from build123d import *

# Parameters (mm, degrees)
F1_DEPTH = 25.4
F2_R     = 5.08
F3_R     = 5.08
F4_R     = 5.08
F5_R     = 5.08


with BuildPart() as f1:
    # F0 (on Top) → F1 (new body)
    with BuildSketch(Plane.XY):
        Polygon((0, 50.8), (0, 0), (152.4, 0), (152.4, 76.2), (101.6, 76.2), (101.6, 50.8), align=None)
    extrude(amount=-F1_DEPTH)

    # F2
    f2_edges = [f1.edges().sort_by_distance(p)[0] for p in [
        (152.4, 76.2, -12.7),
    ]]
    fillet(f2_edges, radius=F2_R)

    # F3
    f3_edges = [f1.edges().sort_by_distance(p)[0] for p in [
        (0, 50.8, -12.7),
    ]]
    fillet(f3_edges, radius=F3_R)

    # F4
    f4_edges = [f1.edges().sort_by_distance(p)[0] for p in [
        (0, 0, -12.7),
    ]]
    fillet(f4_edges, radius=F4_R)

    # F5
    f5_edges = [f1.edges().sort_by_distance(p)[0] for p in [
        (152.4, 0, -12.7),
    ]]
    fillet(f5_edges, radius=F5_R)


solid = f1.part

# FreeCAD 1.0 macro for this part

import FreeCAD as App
import Part
import Sketcher

V = App.Vector
Q = App.Units.Quantity


def edges_at(feature, points):
    """Names of the edges that pass closest to the given points."""
    edges = feature.Shape.Edges
    near = lambda p: min(range(len(edges)), key=lambda i: edges[i].distToShape(Part.Vertex(*p))[0])
    return sorted({f"Edge{near(p) + 1}" for p in points})

doc = App.newDocument("Part")
params = doc.addObject("Spreadsheet::Sheet", "Params")
for row, (alias, value) in enumerate([
    ("sketch1_width", "6 in"),
    ("sketch1_width2", "2 in"),
    ("sketch1_height", "3 in"),
    ("pad1_length", "1 in"),
    ("fillet_radius", "0.2 in"),
    ("fillet2_radius", "0.2 in"),
    ("fillet3_radius", "0.2 in"),
    ("fillet4_radius", "0.2 in"),
], start=1):
    params.set(f"A{row}", alias)
    params.set(f"B{row}", "=" + value)
    params.setAlias(f"B{row}", alias)

body = doc.addObject("PartDesign::Body", "Body")

# Sketch on XY plane
sketch1 = doc.addObject("Sketcher::SketchObject", "Sketch")
body.addObject(sketch1)
sketch1.AttachmentSupport = (doc.XY_Plane, [""])
sketch1.MapMode = "FlatFace"
sketch1.addGeometry(Part.LineSegment(V(0, 51, 0), V(0, 0, 0)), False)
sketch1.addGeometry(Part.LineSegment(V(0, 0, 0), V(152, 0, 0)), False)
sketch1.addGeometry(Part.LineSegment(V(152, 0, 0), V(152, 76, 0)), False)
sketch1.addGeometry(Part.LineSegment(V(152, 76, 0), V(102, 76, 0)), False)
sketch1.addGeometry(Part.LineSegment(V(102, 76, 0), V(102, 51, 0)), False)
sketch1.addGeometry(Part.LineSegment(V(102, 51, 0), V(0, 51, 0)), False)
sketch1.addConstraint(Sketcher.Constraint("Coincident", 0, 2, 1, 1))
sketch1.addConstraint(Sketcher.Constraint("Coincident", 1, 2, 2, 1))
sketch1.addConstraint(Sketcher.Constraint("Coincident", 2, 2, 3, 1))
sketch1.addConstraint(Sketcher.Constraint("Coincident", 3, 2, 4, 1))
sketch1.addConstraint(Sketcher.Constraint("Coincident", 4, 2, 5, 1))
sketch1.addConstraint(Sketcher.Constraint("Coincident", 5, 2, 0, 1))
sketch1.addConstraint(Sketcher.Constraint("Vertical", 0))
sketch1.addConstraint(Sketcher.Constraint("Horizontal", 1))
sketch1.addConstraint(Sketcher.Constraint("Vertical", 2))
sketch1.addConstraint(Sketcher.Constraint("Horizontal", 3))
sketch1.addConstraint(Sketcher.Constraint("Vertical", 4))
sketch1.addConstraint(Sketcher.Constraint("Horizontal", 5))
sketch1.addConstraint(Sketcher.Constraint("Coincident", 0, 2, -1, 1))
sketch1.addConstraint(Sketcher.Constraint("Equal", 3, 0))
sketch1.addConstraint(Sketcher.Constraint("DistanceX", 1, 1, 1, 2, Q("6 in")))
sketch1.addConstraint(Sketcher.Constraint("DistanceX", 3, 2, 3, 1, Q("2 in")))
sketch1.addConstraint(Sketcher.Constraint("DistanceY", 2, 1, 2, 2, Q("3 in")))
sketch1.setExpression("Constraints[14]", "Params.sketch1_width")
sketch1.setExpression("Constraints[15]", "Params.sketch1_width2")
sketch1.setExpression("Constraints[16]", "Params.sketch1_height")
pad1 = doc.addObject("PartDesign::Pad", "Pad")
body.addObject(pad1)
pad1.Profile = sketch1
pad1.setExpression("Length", "Params.pad1_length")
pad1.Reversed = True
doc.recompute()

fillet = doc.addObject("PartDesign::Fillet", "Fillet")
body.addObject(fillet)
fillet.Base = (pad1, edges_at(pad1, [(152.4, 76.2, -12.7)]))
fillet.setExpression("Radius", "Params.fillet_radius")
doc.recompute()

fillet2 = doc.addObject("PartDesign::Fillet", "Fillet001")
body.addObject(fillet2)
fillet2.Base = (fillet, edges_at(fillet, [(0, 50.8, -12.7)]))
fillet2.setExpression("Radius", "Params.fillet2_radius")
doc.recompute()

fillet3 = doc.addObject("PartDesign::Fillet", "Fillet002")
body.addObject(fillet3)
fillet3.Base = (fillet2, edges_at(fillet2, [(0, 0, -12.7)]))
fillet3.setExpression("Radius", "Params.fillet3_radius")
doc.recompute()

fillet4 = doc.addObject("PartDesign::Fillet", "Fillet003")
body.addObject(fillet4)
fillet4.Base = (fillet3, edges_at(fillet3, [(152.4, 0, -12.7)]))
fillet4.setExpression("Radius", "Params.fillet4_radius")

doc.recompute()
